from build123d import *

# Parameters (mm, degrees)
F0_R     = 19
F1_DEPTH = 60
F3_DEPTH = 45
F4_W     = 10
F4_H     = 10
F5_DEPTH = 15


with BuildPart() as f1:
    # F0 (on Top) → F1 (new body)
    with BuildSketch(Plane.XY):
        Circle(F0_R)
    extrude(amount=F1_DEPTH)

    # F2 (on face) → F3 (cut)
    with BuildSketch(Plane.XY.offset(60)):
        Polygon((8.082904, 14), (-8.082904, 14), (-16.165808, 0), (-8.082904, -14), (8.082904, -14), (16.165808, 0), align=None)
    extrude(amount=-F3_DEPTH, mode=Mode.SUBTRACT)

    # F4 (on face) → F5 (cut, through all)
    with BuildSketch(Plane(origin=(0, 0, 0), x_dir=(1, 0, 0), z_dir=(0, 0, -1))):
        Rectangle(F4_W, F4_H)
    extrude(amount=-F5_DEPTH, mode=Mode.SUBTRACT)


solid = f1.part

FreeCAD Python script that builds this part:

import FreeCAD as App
import Part
import Sketcher
Q = App.Units.Quantity


def add_polygon(sketch, points):
    """Adds a closed chain of lines whose ends are joined by coincident constraints."""
    first, n = sketch.GeometryCount, len(points)
    for a, b in zip(points, points[1:] + points[:1]):
        sketch.addGeometry(Part.LineSegment(App.Vector(*a, 0), App.Vector(*b, 0)), False)
    for i in range(n):
        sketch.addConstraint(Sketcher.Constraint("Coincident", first + i, 2, first + (i + 1) % n, 1))

doc = App.newDocument("Part")
params = doc.addObject("Spreadsheet::Sheet", "Params")
for row, (alias, value) in enumerate([
    ("sketch1_diameter", "38 mm"),
    ("pad1_length", "60 mm"),
    ("pocket1_length", "45 mm"),
    ("sketch3_width", "10 mm"),
], start=1):
    params.set(f"A{row}", alias)
    params.set(f"B{row}", "=" + value)
    params.setAlias(f"B{row}", alias)

body = doc.addObject("PartDesign::Body", "Body")

sketch1 = doc.addObject("Sketcher::SketchObject", "Sketch")
body.addObject(sketch1)
sketch1.AttachmentSupport = (doc.XY_Plane, [""])
sketch1.MapMode = "FlatFace"
sketch1.addGeometry(Part.Circle(App.Vector(0, 0, 0), App.Vector(0, 0, 1), 19), False)
sketch1.addConstraint([
    Sketcher.Constraint("Coincident", 0, 3, -1, 1),
    Sketcher.Constraint("Diameter", 0, Q("38 mm")),
])
sketch1.setExpression("Constraints[1]", "Params.sketch1_diameter")
pad1 = doc.addObject("PartDesign::Pad", "Pad")
body.addObject(pad1)
pad1.Profile = sketch1
pad1.setExpression("Length", "Params.pad1_length")

sketch2 = doc.addObject("Sketcher::SketchObject", "Sketch001")
body.addObject(sketch2)
sketch2.AttachmentSupport = (doc.XY_Plane, [""])
sketch2.MapMode = "FlatFace"
sketch2.AttachmentOffset = App.Placement(App.Vector(0, 0, 60), App.Rotation())
add_polygon(sketch2, [(8, 14), (-8, 14), (-16, 0), (-8, -14), (8, -14), (16, 0)])
sketch2.addConstraint([
    Sketcher.Constraint("Horizontal", 0),
    Sketcher.Constraint("Horizontal", 3),
    Sketcher.Constraint("Symmetric", 0, 2, 3, 2, -1, 1),
    Sketcher.Constraint("Symmetric", 1, 2, 4, 2, -1, 1),
    Sketcher.Constraint("PointOnObject", 1, 2, -1),
    Sketcher.Constraint("Parallel", 2, 5),
    Sketcher.Constraint("Vertical", 0, 2, 2, 2),
    Sketcher.Constraint("Angle", 1, Q("-120.000001 deg")),
    Sketcher.Constraint("DistanceY", -1, 1, 0, 2, Q("14 mm")),
    Sketcher.Constraint("DistanceX", 0, 2, 0, 1, Q("16.165808 mm")),
])
pocket1 = doc.addObject("PartDesign::Pocket", "Pocket")
body.addObject(pocket1)
pocket1.Profile = sketch2
pocket1.setExpression("Length", "Params.pocket1_length")

sketch3 = doc.addObject("Sketcher::SketchObject", "Sketch002")
body.addObject(sketch3)
sketch3.AttachmentSupport = (doc.XY_Plane, [""])
sketch3.MapMode = "FlatFace"
add_polygon(sketch3, [(-5, -5), (-5, 5), (5, 5), (5, -5)])
sketch3.addConstraint([
    Sketcher.Constraint("Vertical", 0),
    Sketcher.Constraint("Horizontal", 1),
    Sketcher.Constraint("Vertical", 2),
    Sketcher.Constraint("Horizontal", 3),
    Sketcher.Constraint("Symmetric", 0, 2, 2, 2, -1, 1),
    Sketcher.Constraint("Equal", 3, 0),
    Sketcher.Constraint("DistanceX", 1, 1, 1, 2, Q("10 mm")),
])
sketch3.setExpression("Constraints[10]", "Params.sketch3_width")
pocket2 = doc.addObject("PartDesign::Pocket", "Pocket001")
body.addObject(pocket2)
pocket2.Profile = sketch3
pocket2.Type = "ThroughAll"
pocket2.Reversed = True

doc.recompute()
